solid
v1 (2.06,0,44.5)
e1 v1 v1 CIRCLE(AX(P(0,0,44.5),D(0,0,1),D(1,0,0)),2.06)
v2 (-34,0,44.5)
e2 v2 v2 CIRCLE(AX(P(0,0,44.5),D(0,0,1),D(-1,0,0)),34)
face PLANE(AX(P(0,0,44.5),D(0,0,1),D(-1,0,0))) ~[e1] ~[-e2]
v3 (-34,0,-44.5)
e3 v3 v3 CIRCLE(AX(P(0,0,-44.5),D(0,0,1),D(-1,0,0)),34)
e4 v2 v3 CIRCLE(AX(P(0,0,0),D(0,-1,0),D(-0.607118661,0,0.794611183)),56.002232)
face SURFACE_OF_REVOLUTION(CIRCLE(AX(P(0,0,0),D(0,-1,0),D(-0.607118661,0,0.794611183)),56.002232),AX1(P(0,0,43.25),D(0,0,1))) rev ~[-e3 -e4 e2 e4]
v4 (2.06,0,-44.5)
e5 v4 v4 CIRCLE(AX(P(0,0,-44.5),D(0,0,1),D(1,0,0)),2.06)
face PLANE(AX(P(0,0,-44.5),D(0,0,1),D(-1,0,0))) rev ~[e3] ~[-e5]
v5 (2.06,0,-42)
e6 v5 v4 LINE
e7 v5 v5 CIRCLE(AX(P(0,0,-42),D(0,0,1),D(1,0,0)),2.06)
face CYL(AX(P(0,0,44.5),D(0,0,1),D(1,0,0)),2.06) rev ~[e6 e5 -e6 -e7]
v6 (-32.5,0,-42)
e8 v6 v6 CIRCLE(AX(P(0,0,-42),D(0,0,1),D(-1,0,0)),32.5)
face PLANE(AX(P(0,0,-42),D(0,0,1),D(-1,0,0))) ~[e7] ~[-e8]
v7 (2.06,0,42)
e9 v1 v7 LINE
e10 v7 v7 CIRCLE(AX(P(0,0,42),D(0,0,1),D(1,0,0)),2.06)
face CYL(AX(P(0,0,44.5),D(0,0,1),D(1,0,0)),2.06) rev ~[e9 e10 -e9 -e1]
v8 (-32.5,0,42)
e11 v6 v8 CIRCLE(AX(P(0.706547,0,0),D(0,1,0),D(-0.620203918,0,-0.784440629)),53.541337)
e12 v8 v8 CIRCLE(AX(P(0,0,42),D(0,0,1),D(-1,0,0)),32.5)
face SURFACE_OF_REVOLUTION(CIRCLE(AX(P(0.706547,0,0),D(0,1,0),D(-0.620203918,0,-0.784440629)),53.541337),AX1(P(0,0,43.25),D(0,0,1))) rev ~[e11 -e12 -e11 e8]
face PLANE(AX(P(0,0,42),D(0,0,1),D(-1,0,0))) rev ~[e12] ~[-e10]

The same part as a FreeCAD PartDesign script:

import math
import FreeCAD as App
import Part
import Sketcher
Q = App.Units.Quantity

doc = App.newDocument("Part")
params = doc.addObject("Spreadsheet::Sheet", "Params")
for row, (alias, value) in enumerate([
    ("sketch1_width", "34 mm"),
    ("sketch1_width2", "32.5 mm"),
    ("sketch1_height", "2.5 mm"),
    ("revolution_angle", "360 deg"),
    ("sketch2_diameter", "4.12 mm"),
], start=1):
    params.set(f"A{row}", alias)
    params.set(f"B{row}", "=" + value)
    params.setAlias(f"B{row}", alias)

body = doc.addObject("PartDesign::Body", "Body")

# Sketch on XZ plane
sketch1 = body.newObject("Sketcher::SketchObject", "Sketch")
sketch1.AttachmentSupport = (doc.getObject("XZ_Plane"), [""])
sketch1.MapMode = "FlatFace"
sketch1.addGeometry([
    Part.LineSegment(App.Vector(-32.5, 42, 0), App.Vector(0, 42, 0)),  # 0
    Part.LineSegment(App.Vector(0, 42, 0), App.Vector(0, 44.5, 0)),  # 1
    Part.LineSegment(App.Vector(0, 44.5, 0), App.Vector(-34, 44.5, 0)),  # 2
    Part.ArcOfCircle(Part.Circle(App.Vector(0, 0, 0), App.Vector(0, 0, 1), 56.002232), math.radians(127.381454), math.radians(232.618546)),  # 3
    Part.LineSegment(App.Vector(-34, -44.5, 0), App.Vector(0, -44.5, 0)),  # 4
    Part.LineSegment(App.Vector(0, -44.5, 0), App.Vector(0, -42, 0)),  # 5
    Part.LineSegment(App.Vector(0, -42, 0), App.Vector(-32.5, -42, 0)),  # 6
    Part.ArcOfCircle(Part.Circle(App.Vector(0.706547, 0, 0), App.Vector(0, 0, 1), 53.541337), math.radians(128.331027), math.radians(231.668973)),  # 7
], False)
sketch1.addConstraint([
    Sketcher.Constraint("Coincident", 0, 2, 1, 1),
    Sketcher.Constraint("Coincident", 1, 2, 2, 1),
    Sketcher.Constraint("Coincident", 2, 2, 3, 1),
    Sketcher.Constraint("Coincident", 3, 2, 4, 1),
    Sketcher.Constraint("Coincident", 4, 2, 5, 1),
    Sketcher.Constraint("Coincident", 5, 2, 6, 1),
    Sketcher.Constraint("Coincident", 6, 2, 7, 2),
    Sketcher.Constraint("Coincident", 7, 1, 0, 1),
    Sketcher.Constraint("Horizontal", 0),
    Sketcher.Constraint("Vertical", 1),
    Sketcher.Constraint("Horizontal", 2),
    Sketcher.Constraint("Horizontal", 4),
    Sketcher.Constraint("Vertical", 5),
    Sketcher.Constraint("Horizontal", 6),
    Sketcher.Constraint("Coincident", 3, 3, -1, 1),
    Sketcher.Constraint("Symmetric", 1, 2, 4, 2, -1, 1),
    Sketcher.Constraint("Symmetric", 0, 2, 5, 2, -1),
    Sketcher.Constraint("PointOnObject", 7, 3, -1),
    Sketcher.Constraint("DistanceX", 2, 2, 2, 1, Q("34 mm")),
    Sketcher.Constraint("DistanceX", 0, 1, 0, 2, Q("32.5 mm")),
    Sketcher.Constraint("DistanceY", 1, 1, 1, 2, Q("2.5 mm")),
    Sketcher.Constraint("DistanceY", -1, 1, 0, 2, Q("42 mm")),
    Sketcher.Constraint("Radius", 7, Q("53.541337 mm")),
])
sketch1.setExpression("Constraints[18]", "Params.sketch1_width")
sketch1.setExpression("Constraints[19]", "Params.sketch1_width2")
sketch1.setExpression("Constraints[20]", "Params.sketch1_height")
revolution = body.newObject("PartDesign::Revolution", "Revolution")
revolution.Profile = sketch1
revolution.ReferenceAxis = (sketch1, ["V_Axis"])
revolution.setExpression("Angle", "Params.revolution_angle")

# Sketch on XY plane
sketch2 = body.newObject("Sketcher::SketchObject", "Sketch001")
sketch2.AttachmentSupport = (doc.getObject("XY_Plane"), [""])
sketch2.MapMode = "FlatFace"
sketch2.AttachmentOffset = App.Placement(App.Vector(0, 0, 44.5), App.Rotation())
sketch2.addGeometry(Part.Circle(App.Vector(0, 0, 0), App.Vector(0, 0, 1), 2.06), False)
sketch2.addConstraint([
    Sketcher.Constraint("Coincident", 0, 3, -1, 1),
    Sketcher.Constraint("Diameter", 0, Q("4.12 mm")),
])
sketch2.setExpression("Constraints[1]", "Params.sketch2_diameter")
pocket1 = body.newObject("PartDesign::Pocket", "Pocket")
pocket1.Profile = sketch2
pocket1.Type = "ThroughAll"

doc.recompute()
